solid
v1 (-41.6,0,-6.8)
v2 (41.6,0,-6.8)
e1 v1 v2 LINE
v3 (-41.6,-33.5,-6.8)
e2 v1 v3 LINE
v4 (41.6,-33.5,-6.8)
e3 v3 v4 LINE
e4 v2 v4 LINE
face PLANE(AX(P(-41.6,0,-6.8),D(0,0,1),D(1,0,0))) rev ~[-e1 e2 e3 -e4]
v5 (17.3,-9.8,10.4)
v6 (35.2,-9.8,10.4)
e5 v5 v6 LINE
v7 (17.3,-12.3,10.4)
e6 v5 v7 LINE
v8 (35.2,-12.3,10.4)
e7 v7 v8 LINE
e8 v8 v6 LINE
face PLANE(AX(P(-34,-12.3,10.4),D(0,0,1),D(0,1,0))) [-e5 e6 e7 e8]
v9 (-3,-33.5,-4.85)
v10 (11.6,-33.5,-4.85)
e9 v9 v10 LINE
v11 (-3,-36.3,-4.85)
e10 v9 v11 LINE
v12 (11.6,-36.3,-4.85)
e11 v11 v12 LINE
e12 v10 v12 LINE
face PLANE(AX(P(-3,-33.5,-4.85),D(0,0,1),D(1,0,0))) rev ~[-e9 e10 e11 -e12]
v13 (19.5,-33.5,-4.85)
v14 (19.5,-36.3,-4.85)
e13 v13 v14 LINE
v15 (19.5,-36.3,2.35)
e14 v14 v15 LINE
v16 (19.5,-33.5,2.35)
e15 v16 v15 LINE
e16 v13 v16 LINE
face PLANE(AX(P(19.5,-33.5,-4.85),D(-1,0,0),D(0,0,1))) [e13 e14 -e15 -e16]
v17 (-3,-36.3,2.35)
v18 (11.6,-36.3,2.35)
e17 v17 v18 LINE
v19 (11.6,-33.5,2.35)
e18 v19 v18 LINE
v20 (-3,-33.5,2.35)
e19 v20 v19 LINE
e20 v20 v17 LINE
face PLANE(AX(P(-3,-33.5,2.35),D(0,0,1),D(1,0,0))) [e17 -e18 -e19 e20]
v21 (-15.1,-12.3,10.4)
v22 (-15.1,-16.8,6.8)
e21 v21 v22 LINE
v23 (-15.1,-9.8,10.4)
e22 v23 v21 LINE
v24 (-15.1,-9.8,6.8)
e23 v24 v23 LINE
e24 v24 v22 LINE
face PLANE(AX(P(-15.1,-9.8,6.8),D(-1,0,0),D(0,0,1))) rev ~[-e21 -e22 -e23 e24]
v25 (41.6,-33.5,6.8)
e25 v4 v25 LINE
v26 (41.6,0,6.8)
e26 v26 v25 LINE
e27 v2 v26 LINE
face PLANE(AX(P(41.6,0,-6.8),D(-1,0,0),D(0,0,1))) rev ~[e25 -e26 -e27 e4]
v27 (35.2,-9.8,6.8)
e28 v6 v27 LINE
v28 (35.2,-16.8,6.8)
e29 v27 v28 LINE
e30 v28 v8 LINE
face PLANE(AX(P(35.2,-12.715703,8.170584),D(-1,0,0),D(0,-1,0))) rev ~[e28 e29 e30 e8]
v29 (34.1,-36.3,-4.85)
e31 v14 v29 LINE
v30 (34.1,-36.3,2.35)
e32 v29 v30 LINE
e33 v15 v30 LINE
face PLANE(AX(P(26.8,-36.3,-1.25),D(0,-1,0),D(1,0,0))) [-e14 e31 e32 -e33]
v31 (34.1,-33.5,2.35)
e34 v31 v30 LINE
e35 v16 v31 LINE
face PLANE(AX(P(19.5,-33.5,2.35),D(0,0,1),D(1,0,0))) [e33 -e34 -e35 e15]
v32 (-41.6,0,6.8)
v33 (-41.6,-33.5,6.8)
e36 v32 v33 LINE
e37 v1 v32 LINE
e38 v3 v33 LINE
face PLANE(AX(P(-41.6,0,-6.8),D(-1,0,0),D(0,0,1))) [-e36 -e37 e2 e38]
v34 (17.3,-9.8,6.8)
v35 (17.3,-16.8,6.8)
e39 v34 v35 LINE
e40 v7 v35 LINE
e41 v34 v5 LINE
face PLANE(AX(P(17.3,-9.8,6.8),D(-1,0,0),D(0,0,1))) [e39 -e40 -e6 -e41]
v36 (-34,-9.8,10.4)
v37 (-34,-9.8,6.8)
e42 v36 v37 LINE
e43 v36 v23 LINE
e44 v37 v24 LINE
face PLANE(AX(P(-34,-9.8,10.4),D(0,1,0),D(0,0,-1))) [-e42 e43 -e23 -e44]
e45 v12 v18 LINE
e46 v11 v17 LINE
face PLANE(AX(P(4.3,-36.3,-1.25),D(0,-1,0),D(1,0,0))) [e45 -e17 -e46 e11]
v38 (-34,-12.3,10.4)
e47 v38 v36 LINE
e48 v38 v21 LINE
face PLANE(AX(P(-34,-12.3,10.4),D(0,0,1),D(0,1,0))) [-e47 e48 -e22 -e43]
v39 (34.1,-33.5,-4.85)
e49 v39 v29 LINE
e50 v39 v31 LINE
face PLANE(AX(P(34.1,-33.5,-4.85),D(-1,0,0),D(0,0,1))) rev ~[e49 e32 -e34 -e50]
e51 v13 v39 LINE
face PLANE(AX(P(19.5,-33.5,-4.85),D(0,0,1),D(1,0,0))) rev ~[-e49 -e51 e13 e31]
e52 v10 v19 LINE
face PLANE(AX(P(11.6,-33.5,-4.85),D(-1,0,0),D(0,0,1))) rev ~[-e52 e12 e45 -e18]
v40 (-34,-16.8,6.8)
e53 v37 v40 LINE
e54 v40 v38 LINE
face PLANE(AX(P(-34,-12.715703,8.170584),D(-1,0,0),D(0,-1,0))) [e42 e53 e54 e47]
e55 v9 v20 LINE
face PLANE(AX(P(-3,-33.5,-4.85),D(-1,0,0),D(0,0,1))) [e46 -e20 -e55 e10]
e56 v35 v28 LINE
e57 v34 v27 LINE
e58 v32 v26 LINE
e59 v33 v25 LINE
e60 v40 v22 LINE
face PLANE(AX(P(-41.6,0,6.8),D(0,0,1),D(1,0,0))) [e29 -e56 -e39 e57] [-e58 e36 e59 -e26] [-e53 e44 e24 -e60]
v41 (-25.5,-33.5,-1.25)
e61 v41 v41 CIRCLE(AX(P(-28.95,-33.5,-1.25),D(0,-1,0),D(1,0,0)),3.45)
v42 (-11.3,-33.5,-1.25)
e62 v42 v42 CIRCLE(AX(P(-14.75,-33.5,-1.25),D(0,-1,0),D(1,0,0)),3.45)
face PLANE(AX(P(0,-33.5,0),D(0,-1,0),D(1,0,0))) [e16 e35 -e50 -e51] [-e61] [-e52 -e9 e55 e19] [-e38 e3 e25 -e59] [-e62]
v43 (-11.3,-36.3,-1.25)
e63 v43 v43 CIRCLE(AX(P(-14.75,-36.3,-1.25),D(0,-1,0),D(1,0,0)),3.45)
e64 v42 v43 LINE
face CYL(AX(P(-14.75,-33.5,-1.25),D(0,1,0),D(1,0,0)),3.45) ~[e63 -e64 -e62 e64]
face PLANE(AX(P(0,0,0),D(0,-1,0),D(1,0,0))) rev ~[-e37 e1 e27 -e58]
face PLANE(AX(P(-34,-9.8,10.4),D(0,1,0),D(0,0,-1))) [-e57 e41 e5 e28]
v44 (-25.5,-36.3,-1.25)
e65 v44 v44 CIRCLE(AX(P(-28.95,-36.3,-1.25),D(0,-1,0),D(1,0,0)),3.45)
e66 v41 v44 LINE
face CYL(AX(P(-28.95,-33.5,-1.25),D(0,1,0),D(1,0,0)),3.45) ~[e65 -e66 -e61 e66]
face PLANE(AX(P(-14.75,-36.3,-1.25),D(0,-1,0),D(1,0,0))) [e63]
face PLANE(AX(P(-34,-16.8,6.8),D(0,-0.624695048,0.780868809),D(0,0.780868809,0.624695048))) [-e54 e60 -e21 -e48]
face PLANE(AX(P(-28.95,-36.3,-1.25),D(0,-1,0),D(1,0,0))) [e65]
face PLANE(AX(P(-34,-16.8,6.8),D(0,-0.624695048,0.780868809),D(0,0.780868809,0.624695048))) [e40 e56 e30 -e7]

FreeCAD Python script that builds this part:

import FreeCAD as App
import Part
import Sketcher


def add_polygon(sketch, points):
    """Adds a closed chain of lines whose ends are joined by coincident constraints."""
    first, n = sketch.GeometryCount, len(points)
    for a, b in zip(points, points[1:] + points[:1]):
        sketch.addGeometry(Part.LineSegment(App.Vector(*a, 0), App.Vector(*b, 0)), False)
    for i in range(n):
        sketch.addConstraint(Sketcher.Constraint("Coincident", first + i, 2, first + (i + 1) % n, 1))

doc = App.newDocument("Part")
params = doc.addObject("Spreadsheet::Sheet", "Params")
for row, (alias, value) in enumerate([
    ("sketch1_width", "83.2 mm"),
    ("sketch1_height", "13.6 mm"),
    ("pad1_length", "33.5 mm"),
    ("sketch2_width", "7 mm"),
    ("sketch2_width2", "2.5 mm"),
    ("sketch2_height", "3.6 mm"),
    ("pad2_length", "69.2 mm"),
    ("sketch3_width", "32.4 mm"),
    ("sketch3_height", "3.6 mm"),
    ("pocket1_length", "8 mm"),
    ("sketch4_diameter", "6.9 mm"),
    ("sketch4_width", "14.6 mm"),
    ("sketch4_height", "7.2 mm"),
    ("pad3_length", "2.8 mm"),
], start=1):
    params.set(f"A{row}", alias)
    params.set(f"B{row}", "=" + value)
    params.setAlias(f"B{row}", alias)

body = doc.addObject("PartDesign::Body", "Body")

sketch1 = body.newObject("Sketcher::SketchObject", "Sketch")
sketch1.AttachmentSupport = (doc.getObject("XZ_Plane"), [""])
sketch1.MapMode = "FlatFace"
add_polygon(sketch1, [(-42, 7), (-42, -7), (42, -7), (42, 7)])
sketch1.addConstraint(Sketcher.Constraint("Vertical", 0))
sketch1.addConstraint(Sketcher.Constraint("Horizontal", 1))
sketch1.addConstraint(Sketcher.Constraint("Vertical", 2))
sketch1.addConstraint(Sketcher.Constraint("Horizontal", 3))
sketch1.addConstraint(Sketcher.Constraint("Symmetric", 0, 2, 2, 2, -1, 1))
sketch1.addConstraint(Sketcher.Constraint("DistanceX", 1, 1, 1, 2, 83.2))
sketch1.addConstraint(Sketcher.Constraint("DistanceY", 0, 2, 0, 1, 13.6))
sketch1.setExpression("Constraints[9]", "Params.sketch1_width")
sketch1.setExpression("Constraints[10]", "Params.sketch1_height")
pad1 = body.newObject("PartDesign::Pad", "Pad")
pad1.Profile = sketch1
pad1.setExpression("Length", "Params.pad1_length")

sketch2 = body.newObject("Sketcher::SketchObject", "Sketch001")
sketch2.AttachmentSupport = (doc.getObject("YZ_Plane"), [""])
sketch2.MapMode = "FlatFace"
sketch2.AttachmentOffset = App.Placement(App.Vector(0, 0, -34), App.Rotation())
add_polygon(sketch2, [(-9.8, 10.4), (-9.8, 6.8), (-16.8, 6.8), (-12.3, 10.4)])
sketch2.addConstraint(Sketcher.Constraint("Vertical", 0))
sketch2.addConstraint(Sketcher.Constraint("Horizontal", 1))
sketch2.addConstraint(Sketcher.Constraint("Horizontal", 3))
sketch2.addConstraint(Sketcher.Constraint("DistanceX", 1, 2, 1, 1, 7.0))
sketch2.addConstraint(Sketcher.Constraint("DistanceX", 3, 1, 3, 2, 2.5))
sketch2.addConstraint(Sketcher.Constraint("DistanceY", 0, 2, 0, 1, 3.6))
sketch2.addConstraint(Sketcher.Constraint("DistanceX", 0, 2, -1, 1, 9.8))
sketch2.addConstraint(Sketcher.Constraint("DistanceY", -1, 1, 0, 2, 6.8))
sketch2.setExpression("Constraints[7]", "Params.sketch2_width")
sketch2.setExpression("Constraints[8]", "Params.sketch2_width2")
sketch2.setExpression("Constraints[9]", "Params.sketch2_height")
pad2 = body.newObject("PartDesign::Pad", "Pad001")
pad2.Profile = sketch2
pad2.setExpression("Length", "Params.pad2_length")

sketch3 = body.newObject("Sketcher::SketchObject", "Sketch002")
sketch3.AttachmentSupport = (doc.getObject("XZ_Plane"), [""])
sketch3.MapMode = "FlatFace"
sketch3.AttachmentOffset = App.Placement(App.Vector(0, 0, 9.8), App.Rotation())
add_polygon(sketch3, [(17.3, 10.4), (17.3, 6.8), (-15.1, 6.8), (-15.1, 10.4)])
sketch3.addConstraint(Sketcher.Constraint("Vertical", 0))
sketch3.addConstraint(Sketcher.Constraint("Horizontal", 1))
sketch3.addConstraint(Sketcher.Constraint("Vertical", 2))
sketch3.addConstraint(Sketcher.Constraint("Horizontal", 3))
sketch3.addConstraint(Sketcher.Constraint("DistanceX", 1, 2, 1, 1, 32.4))
sketch3.addConstraint(Sketcher.Constraint("DistanceY", 0, 2, 0, 1, 3.6))
sketch3.addConstraint(Sketcher.Constraint("DistanceX", -1, 1, 0, 2, 17.3))
sketch3.addConstraint(Sketcher.Constraint("DistanceY", -1, 1, 0, 2, 6.8))
sketch3.setExpression("Constraints[8]", "Params.sketch3_width")
sketch3.setExpression("Constraints[9]", "Params.sketch3_height")
pocket1 = body.newObject("PartDesign::Pocket", "Pocket")
pocket1.Profile = sketch3
pocket1.setExpression("Length", "Params.pocket1_length")
pocket1.Reversed = True

sketch4 = body.newObject("Sketcher::SketchObject", "Sketch003")
sketch4.AttachmentSupport = (doc.getObject("XZ_Plane"), [""])
sketch4.MapMode = "FlatFace"
sketch4.AttachmentOffset = App.Placement(App.Vector(0, 0, 33.5), App.Rotation())
sketch4.addGeometry(Part.Circle(App.Vector(-28.9, -1.2, 0), App.Vector(0, 0, 1), 3.5), False)
sketch4.addGeometry(Part.Circle(App.Vector(-14.8, -1.2, 0), App.Vector(0, 0, 1), 3.5), False)
add_polygon(sketch4, [(-3, 2.4), (-3, -4.8), (11.6, -4.8), (11.6, 2.4)])
add_polygon(sketch4, [(19.5, 2.4), (19.5, -4.8), (34.1, -4.8), (34.1, 2.4)])
sketch4.addConstraint(Sketcher.Constraint("Vertical", 2))
sketch4.addConstraint(Sketcher.Constraint("Horizontal", 3))
sketch4.addConstraint(Sketcher.Constraint("Vertical", 4))
sketch4.addConstraint(Sketcher.Constraint("Horizontal", 5))
sketch4.addConstraint(Sketcher.Constraint("Vertical", 6))
sketch4.addConstraint(Sketcher.Constraint("Horizontal", 7))
sketch4.addConstraint(Sketcher.Constraint("Vertical", 8))
sketch4.addConstraint(Sketcher.Constraint("Horizontal", 9))
sketch4.addConstraint(Sketcher.Constraint("Equal", 0, 1))
sketch4.addConstraint(Sketcher.Constraint("Horizontal", 0, 3, 1, 3))
sketch4.addConstraint(Sketcher.Constraint("Horizontal", 3, 2, 6, 2))
sketch4.addConstraint(Sketcher.Constraint("Horizontal", 5, 2, 8, 2))
sketch4.addConstraint(Sketcher.Constraint("Equal", 5, 7))
sketch4.addConstraint(Sketcher.Constraint("Diameter", 0, 6.9))
sketch4.addConstraint(Sketcher.Constraint("DistanceX", 3, 1, 3, 2, 14.6))
sketch4.addConstraint(Sketcher.Constraint("DistanceY", 2, 2, 2, 1, 7.2))
sketch4.addConstraint(Sketcher.Constraint("DistanceX", 2, 2, -1, 1, 3.0))
sketch4.addConstraint(Sketcher.Constraint("DistanceX", -1, 1, 6, 2, 19.5))
sketch4.addConstraint(Sketcher.Constraint("DistanceX", 0, 3, 1, 3, 14.2))
sketch4.addConstraint(Sketcher.Constraint("DistanceY", 2, 2, 1, 3, 3.6))
sketch4.addConstraint(Sketcher.Constraint("DistanceX", 0, 3, -1, 1, 28.95))
sketch4.addConstraint(Sketcher.Constraint("DistanceY", 0, 3, -1, 1, 1.25))
sketch4.setExpression("Constraints[21]", "Params.sketch4_diameter")
sketch4.setExpression("Constraints[22]", "Params.sketch4_width")
sketch4.setExpression("Constraints[23]", "Params.sketch4_height")
pad3 = body.newObject("PartDesign::Pad", "Pad002")
pad3.Profile = sketch4
pad3.setExpression("Length", "Params.pad3_length")

doc.recompute()
